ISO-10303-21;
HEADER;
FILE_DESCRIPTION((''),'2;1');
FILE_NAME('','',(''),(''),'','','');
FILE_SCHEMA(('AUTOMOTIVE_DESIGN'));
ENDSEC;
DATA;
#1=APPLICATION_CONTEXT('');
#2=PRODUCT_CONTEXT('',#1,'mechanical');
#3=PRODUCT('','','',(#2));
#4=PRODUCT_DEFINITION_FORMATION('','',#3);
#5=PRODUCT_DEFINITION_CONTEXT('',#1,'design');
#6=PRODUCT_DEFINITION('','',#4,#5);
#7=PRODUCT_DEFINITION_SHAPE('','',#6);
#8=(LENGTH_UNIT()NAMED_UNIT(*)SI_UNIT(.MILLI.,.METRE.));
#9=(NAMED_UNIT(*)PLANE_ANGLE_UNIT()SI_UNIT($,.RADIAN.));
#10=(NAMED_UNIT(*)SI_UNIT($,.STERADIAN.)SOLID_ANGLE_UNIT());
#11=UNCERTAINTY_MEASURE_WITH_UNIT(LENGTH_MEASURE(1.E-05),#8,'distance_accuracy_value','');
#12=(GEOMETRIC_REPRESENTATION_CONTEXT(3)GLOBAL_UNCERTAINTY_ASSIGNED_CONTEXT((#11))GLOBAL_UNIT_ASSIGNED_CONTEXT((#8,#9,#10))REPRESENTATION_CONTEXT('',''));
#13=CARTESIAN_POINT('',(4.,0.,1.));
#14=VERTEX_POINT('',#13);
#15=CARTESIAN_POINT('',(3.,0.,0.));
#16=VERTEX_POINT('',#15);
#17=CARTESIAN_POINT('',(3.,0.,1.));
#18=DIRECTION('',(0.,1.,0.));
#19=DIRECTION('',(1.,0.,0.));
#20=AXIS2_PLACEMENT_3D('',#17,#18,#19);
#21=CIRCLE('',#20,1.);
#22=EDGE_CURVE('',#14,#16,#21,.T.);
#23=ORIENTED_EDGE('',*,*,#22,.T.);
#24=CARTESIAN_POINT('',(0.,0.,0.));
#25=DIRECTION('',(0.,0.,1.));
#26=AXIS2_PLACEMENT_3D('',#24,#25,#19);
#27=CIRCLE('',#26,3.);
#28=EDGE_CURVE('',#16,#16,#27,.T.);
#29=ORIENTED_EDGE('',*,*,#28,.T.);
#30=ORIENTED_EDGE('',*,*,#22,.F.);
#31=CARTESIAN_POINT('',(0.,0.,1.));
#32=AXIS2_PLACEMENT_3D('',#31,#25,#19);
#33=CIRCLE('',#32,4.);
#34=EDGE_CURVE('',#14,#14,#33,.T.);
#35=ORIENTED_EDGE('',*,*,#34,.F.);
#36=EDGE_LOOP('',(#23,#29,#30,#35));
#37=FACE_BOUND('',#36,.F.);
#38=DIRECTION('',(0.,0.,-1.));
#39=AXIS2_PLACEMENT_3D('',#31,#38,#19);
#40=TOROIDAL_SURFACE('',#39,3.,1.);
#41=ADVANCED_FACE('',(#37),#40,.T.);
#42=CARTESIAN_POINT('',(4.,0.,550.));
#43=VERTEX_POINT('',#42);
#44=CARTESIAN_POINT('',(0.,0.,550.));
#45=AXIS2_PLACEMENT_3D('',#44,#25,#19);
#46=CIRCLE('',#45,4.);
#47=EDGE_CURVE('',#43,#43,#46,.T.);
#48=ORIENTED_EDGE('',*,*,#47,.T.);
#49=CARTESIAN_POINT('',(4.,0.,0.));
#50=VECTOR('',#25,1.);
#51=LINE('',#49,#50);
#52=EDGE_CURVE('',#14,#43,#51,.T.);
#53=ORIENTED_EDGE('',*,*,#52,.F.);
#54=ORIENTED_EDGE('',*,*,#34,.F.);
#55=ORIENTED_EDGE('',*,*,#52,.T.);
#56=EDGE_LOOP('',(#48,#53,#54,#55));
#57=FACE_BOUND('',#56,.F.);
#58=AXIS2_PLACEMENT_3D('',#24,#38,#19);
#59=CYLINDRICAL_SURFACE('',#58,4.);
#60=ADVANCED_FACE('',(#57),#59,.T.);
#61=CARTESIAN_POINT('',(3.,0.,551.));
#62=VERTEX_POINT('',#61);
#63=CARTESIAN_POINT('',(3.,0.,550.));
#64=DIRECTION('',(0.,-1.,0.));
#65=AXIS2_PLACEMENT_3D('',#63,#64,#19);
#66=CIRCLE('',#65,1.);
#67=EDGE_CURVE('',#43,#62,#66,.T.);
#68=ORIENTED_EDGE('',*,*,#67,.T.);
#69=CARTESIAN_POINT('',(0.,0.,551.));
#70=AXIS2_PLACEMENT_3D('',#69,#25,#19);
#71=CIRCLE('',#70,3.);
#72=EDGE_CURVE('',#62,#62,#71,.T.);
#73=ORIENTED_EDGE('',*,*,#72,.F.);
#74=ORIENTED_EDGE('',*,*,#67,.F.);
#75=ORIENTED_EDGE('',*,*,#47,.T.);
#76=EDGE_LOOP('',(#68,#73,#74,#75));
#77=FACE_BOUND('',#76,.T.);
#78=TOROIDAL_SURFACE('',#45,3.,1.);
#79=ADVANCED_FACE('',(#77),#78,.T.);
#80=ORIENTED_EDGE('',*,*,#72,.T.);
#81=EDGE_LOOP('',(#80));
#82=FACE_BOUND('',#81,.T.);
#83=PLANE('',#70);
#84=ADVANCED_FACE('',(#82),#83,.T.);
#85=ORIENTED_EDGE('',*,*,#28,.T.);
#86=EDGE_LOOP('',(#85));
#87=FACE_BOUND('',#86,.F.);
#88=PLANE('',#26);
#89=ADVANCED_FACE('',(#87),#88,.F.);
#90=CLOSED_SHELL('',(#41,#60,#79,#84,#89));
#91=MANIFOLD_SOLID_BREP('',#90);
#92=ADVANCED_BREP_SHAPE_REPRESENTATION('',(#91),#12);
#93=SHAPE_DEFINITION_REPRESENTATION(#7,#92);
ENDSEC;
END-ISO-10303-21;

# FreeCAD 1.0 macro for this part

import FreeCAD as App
import Part
import Sketcher

V = App.Vector


def edges_at(feature, points):
    """Names of the edges that pass closest to the given points."""
    edges = feature.Shape.Edges
    near = lambda p: min(range(len(edges)), key=lambda i: edges[i].distToShape(Part.Vertex(*p))[0])
    return sorted({f"Edge{near(p) + 1}" for p in points})

doc = App.newDocument("Part")
body = doc.addObject("PartDesign::Body", "Body")

# Sketch on XY plane
sketch1 = body.newObject("Sketcher::SketchObject", "Sketch")
sketch1.AttachmentSupport = (doc.getObject("XY_Plane"), [""])
sketch1.MapMode = "FlatFace"
sketch1.addGeometry(Part.Circle(V(0, 0, 0), V(0, 0, 1), 4), False)
sketch1.addConstraint(Sketcher.Constraint("Coincident", 0, 3, -1, 1))
sketch1.addConstraint(Sketcher.Constraint("Diameter", 0, 8.0))
pad1 = body.newObject("PartDesign::Pad", "Pad")
pad1.Profile = sketch1
pad1.Length = 551
doc.recompute()

fillet = body.newObject("PartDesign::Fillet", "Fillet")
fillet.Base = (pad1, edges_at(pad1, [(-4, 0, 551), (-4, 0, 0)]))
fillet.Radius = 1

doc.recompute()
